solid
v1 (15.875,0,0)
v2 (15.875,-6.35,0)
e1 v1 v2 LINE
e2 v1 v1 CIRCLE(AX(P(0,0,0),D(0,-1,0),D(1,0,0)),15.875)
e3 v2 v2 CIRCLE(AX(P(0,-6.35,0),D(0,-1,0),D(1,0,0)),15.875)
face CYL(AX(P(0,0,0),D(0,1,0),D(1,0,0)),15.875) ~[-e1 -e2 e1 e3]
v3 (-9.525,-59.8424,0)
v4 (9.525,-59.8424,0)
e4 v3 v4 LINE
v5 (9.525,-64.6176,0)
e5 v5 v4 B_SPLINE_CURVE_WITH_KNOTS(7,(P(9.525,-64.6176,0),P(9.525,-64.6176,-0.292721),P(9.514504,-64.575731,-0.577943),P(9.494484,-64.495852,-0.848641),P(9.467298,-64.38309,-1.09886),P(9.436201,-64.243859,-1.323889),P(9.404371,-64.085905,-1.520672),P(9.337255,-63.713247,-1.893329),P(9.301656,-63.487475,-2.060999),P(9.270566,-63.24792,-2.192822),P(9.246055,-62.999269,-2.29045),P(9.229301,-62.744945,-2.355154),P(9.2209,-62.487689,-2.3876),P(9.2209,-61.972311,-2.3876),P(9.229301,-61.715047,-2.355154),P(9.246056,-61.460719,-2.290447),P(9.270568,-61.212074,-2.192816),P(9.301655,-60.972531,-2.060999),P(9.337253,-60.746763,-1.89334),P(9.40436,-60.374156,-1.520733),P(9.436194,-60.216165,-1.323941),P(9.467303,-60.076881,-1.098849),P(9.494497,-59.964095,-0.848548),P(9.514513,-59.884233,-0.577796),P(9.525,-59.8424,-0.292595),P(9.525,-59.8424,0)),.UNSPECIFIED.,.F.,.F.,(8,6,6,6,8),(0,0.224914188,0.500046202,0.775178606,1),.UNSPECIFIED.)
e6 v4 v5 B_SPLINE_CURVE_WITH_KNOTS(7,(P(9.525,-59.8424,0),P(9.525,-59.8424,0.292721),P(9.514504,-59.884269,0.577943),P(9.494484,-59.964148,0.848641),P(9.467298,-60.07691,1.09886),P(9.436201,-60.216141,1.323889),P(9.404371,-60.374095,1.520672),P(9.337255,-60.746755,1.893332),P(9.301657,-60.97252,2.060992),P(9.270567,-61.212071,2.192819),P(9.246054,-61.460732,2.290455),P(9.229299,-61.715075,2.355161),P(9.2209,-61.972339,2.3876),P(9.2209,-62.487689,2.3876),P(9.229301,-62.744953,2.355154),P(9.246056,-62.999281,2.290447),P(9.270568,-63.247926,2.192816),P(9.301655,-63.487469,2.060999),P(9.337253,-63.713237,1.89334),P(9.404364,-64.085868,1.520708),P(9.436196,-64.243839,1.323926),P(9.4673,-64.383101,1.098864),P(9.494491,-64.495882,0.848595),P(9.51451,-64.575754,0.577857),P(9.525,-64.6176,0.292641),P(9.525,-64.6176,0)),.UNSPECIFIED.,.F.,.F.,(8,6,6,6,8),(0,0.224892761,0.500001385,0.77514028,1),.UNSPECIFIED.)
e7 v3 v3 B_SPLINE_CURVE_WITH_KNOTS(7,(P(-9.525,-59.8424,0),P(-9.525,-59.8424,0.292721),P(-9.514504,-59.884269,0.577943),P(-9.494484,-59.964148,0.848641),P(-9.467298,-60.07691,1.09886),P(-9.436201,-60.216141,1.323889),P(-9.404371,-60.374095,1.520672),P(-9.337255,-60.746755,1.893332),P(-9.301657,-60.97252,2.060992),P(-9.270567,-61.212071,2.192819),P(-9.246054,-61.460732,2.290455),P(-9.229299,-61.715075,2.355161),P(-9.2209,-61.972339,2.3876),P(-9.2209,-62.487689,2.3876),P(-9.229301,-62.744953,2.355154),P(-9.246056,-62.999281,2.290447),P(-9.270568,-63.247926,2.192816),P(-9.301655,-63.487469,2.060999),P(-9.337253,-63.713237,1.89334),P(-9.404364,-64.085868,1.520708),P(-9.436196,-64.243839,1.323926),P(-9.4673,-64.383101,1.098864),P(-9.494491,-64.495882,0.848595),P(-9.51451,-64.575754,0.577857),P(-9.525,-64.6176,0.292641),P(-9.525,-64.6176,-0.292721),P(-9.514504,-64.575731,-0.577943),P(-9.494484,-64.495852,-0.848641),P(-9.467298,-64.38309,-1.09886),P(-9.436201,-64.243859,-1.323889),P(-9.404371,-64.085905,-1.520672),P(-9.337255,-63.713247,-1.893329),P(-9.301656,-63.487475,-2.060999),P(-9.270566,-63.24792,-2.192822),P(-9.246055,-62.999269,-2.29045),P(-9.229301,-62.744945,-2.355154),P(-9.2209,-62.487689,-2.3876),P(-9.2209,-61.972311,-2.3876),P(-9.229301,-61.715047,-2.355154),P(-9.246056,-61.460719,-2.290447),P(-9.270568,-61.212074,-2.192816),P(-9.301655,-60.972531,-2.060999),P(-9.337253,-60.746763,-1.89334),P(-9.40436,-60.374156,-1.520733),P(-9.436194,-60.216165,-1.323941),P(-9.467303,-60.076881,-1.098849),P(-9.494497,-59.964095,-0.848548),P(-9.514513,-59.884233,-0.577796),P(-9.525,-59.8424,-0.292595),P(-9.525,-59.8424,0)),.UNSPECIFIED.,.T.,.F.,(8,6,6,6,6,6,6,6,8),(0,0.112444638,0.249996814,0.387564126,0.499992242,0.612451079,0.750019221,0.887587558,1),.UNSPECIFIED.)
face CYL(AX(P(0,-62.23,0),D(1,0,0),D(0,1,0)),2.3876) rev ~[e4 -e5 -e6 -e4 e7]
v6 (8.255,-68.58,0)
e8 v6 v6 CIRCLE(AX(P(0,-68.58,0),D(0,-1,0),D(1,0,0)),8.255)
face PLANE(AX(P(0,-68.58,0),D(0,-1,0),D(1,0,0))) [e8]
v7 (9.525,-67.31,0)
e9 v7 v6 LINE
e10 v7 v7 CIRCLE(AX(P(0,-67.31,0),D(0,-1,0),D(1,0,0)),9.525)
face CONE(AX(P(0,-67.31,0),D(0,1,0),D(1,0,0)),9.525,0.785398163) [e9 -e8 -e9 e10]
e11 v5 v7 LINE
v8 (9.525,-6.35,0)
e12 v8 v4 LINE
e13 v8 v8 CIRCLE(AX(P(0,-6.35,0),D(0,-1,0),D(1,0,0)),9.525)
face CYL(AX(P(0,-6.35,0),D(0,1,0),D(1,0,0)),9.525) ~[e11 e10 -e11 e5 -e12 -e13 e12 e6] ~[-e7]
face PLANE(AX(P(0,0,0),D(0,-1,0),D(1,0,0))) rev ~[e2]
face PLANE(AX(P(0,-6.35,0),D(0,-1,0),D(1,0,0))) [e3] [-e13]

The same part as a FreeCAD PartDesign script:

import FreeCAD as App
import Part
import Sketcher
Q = App.Units.Quantity


def edges_at(feature, points):
    """Names of the edges that pass closest to the given points."""
    edges = feature.Shape.Edges
    near = lambda p: min(range(len(edges)), key=lambda i: edges[i].distToShape(Part.Vertex(*p))[0])
    return sorted({f"Edge{near(p) + 1}" for p in points})

doc = App.newDocument("Part")
params = doc.addObject("Spreadsheet::Sheet", "Params")
for row, (alias, value) in enumerate([
    ("sketch1_diameter", "1.25 in"),
    ("pad1_length", "0.25 in"),
    ("sketch2_diameter", "0.75 in"),
    ("pad2_length", "2.45 in"),
    ("chamfer_size", "0.05 in"),
    ("chamfer_size2", "0.05 in"),
    ("sketch3_diameter", "0.188 in"),
    ("pocket1_length", "55 in"),
], start=1):
    params.set(f"A{row}", alias)
    params.set(f"B{row}", "=" + value)
    params.setAlias(f"B{row}", alias)

body = doc.addObject("PartDesign::Body", "Body")

sketch1 = doc.addObject("Sketcher::SketchObject", "Sketch")
body.addObject(sketch1)
sketch1.AttachmentSupport = (doc.XZ_Plane, [""])
sketch1.MapMode = "FlatFace"
sketch1.addGeometry(Part.Circle(App.Vector(0, 0, 0), App.Vector(0, 0, 1), 15.875), False)
sketch1.addConstraint(Sketcher.Constraint("Coincident", 0, 3, -1, 1))
sketch1.addConstraint(Sketcher.Constraint("Diameter", 0, Q("1.25 in")))
sketch1.setExpression("Constraints[1]", "Params.sketch1_diameter")
pad1 = doc.addObject("PartDesign::Pad", "Pad")
body.addObject(pad1)
pad1.Profile = sketch1
pad1.setExpression("Length", "Params.pad1_length")

sketch2 = doc.addObject("Sketcher::SketchObject", "Sketch001")
body.addObject(sketch2)
sketch2.AttachmentSupport = (doc.XZ_Plane, [""])
sketch2.MapMode = "FlatFace"
sketch2.AttachmentOffset = App.Placement(App.Vector(0, 0, 0.25 * 25.4), App.Rotation())
sketch2.addGeometry(Part.Circle(App.Vector(0, 0, 0), App.Vector(0, 0, 1), 9.525), False)
sketch2.addConstraint(Sketcher.Constraint("Coincident", 0, 3, -1, 1))
sketch2.addConstraint(Sketcher.Constraint("Diameter", 0, Q("0.75 in")))
sketch2.setExpression("Constraints[1]", "Params.sketch2_diameter")
pad2 = doc.addObject("PartDesign::Pad", "Pad001")
body.addObject(pad2)
pad2.Profile = sketch2
pad2.setExpression("Length", "Params.pad2_length")
doc.recompute()

chamfer = doc.addObject("PartDesign::Chamfer", "Chamfer")
body.addObject(chamfer)
chamfer.Base = (pad2, edges_at(pad2, [(-9.525, -68.58, 0)]))
chamfer.ChamferType = "Two distances"
chamfer.setExpression("Size", "Params.chamfer_size")
chamfer.setExpression("Size2", "Params.chamfer_size2")

sketch3 = doc.addObject("Sketcher::SketchObject", "Sketch002")
body.addObject(sketch3)
sketch3.AttachmentSupport = (doc.YZ_Plane, [""])
sketch3.MapMode = "FlatFace"
sketch3.addGeometry(Part.Circle(App.Vector(-62.23, 0, 0), App.Vector(0, 0, 1), 2.3876), False)
sketch3.addConstraint(Sketcher.Constraint("PointOnObject", 0, 3, -1))
sketch3.addConstraint(Sketcher.Constraint("Diameter", 0, Q("0.188 in")))
sketch3.addConstraint(Sketcher.Constraint("DistanceX", 0, 3, -1, 1, Q("2.45 in")))
sketch3.setExpression("Constraints[1]", "Params.sketch3_diameter")
pocket1 = doc.addObject("PartDesign::Pocket", "Pocket")
body.addObject(pocket1)
pocket1.Profile = sketch3
pocket1.setExpression("Length", "Params.pocket1_length")
pocket1.Midplane = True

doc.recompute()
